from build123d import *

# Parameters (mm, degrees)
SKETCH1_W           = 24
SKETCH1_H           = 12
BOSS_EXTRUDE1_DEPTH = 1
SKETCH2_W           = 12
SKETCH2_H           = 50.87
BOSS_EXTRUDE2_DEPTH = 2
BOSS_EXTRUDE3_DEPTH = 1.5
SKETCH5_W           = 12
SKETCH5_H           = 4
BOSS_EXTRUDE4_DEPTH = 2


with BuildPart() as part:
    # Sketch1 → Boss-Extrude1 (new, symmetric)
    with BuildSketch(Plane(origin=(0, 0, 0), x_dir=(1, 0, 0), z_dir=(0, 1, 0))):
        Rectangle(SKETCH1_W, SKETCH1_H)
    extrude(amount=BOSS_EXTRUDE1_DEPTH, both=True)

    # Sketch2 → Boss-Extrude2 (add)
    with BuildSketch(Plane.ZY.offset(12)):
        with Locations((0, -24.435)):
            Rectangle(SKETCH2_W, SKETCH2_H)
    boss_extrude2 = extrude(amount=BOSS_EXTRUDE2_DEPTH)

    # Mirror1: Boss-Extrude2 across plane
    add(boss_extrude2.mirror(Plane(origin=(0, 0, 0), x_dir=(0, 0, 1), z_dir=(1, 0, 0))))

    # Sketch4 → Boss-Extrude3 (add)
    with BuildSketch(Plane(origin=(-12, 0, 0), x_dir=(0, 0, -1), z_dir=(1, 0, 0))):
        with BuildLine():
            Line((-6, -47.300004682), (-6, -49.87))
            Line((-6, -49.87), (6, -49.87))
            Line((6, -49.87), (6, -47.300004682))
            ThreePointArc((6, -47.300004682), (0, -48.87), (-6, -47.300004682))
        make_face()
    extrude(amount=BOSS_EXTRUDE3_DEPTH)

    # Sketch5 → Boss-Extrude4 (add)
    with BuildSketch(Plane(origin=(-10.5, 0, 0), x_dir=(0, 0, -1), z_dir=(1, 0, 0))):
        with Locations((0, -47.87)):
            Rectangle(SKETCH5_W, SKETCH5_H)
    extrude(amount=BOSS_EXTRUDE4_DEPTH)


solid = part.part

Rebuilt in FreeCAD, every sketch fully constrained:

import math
import FreeCAD as App
import Part
import Sketcher
from FreeCAD import Vector
Q = App.Units.Quantity


def add_polygon(sketch, points):
    """Adds a closed chain of lines whose ends are joined by coincident constraints."""
    first, n = sketch.GeometryCount, len(points)
    for a, b in zip(points, points[1:] + points[:1]):
        sketch.addGeometry(Part.LineSegment(App.Vector(*a, 0), App.Vector(*b, 0)), False)
    for i in range(n):
        sketch.addConstraint(Sketcher.Constraint("Coincident", first + i, 2, first + (i + 1) % n, 1))

doc = App.newDocument("Part")
body = doc.addObject("PartDesign::Body", "Body")

# Sketch on XZ plane
sketch1 = body.newObject("Sketcher::SketchObject", "Sketch")
sketch1.AttachmentSupport = (doc.getObject("XZ_Plane"), [""])
sketch1.MapMode = "FlatFace"
add_polygon(sketch1, [(-12, -6), (-12, 6), (12, 6), (12, -6)])  # lines 0-3
sketch1.addConstraint([
    Sketcher.Constraint("Vertical", 0),
    Sketcher.Constraint("Horizontal", 1),
    Sketcher.Constraint("Vertical", 2),
    Sketcher.Constraint("Horizontal", 3),
    Sketcher.Constraint("Symmetric", 0, 2, 2, 2, -1, 1),
    Sketcher.Constraint("DistanceX", 1, 1, 1, 2, Q("24 mm")),
    Sketcher.Constraint("DistanceY", 0, 1, 0, 2, Q("12 mm")),
])
pad1 = body.newObject("PartDesign::Pad", "Pad")
pad1.Profile = sketch1
pad1.Length = 2
pad1.Midplane = True

# Sketch on YZ plane
sketch2 = body.newObject("Sketcher::SketchObject", "Sketch001")
sketch2.AttachmentSupport = (doc.getObject("YZ_Plane"), [""])
sketch2.MapMode = "FlatFace"
sketch2.AttachmentOffset = App.Placement(Vector(0, 0, -12), App.Rotation())
add_polygon(sketch2, [(1, -6), (-50, -6), (-50, 6), (1, 6)])  # lines 0-3
sketch2.addConstraint([
    Sketcher.Constraint("Horizontal", 0),
    Sketcher.Constraint("Vertical", 1),
    Sketcher.Constraint("Horizontal", 2),
    Sketcher.Constraint("Vertical", 3),
    Sketcher.Constraint("DistanceY", 1, 1, 1, 2, Q("12 mm")),
    Sketcher.Constraint("DistanceY", 0, 2, -1, 1, Q("6 mm")),
    Sketcher.Constraint("DistanceX", -1, 1, 2, 2, Q("1 mm")),
    Sketcher.Constraint("DistanceX", 0, 2, 0, 1, Q("50.87 mm")),
])
pad2 = body.newObject("PartDesign::Pad", "Pad001")
pad2.Profile = sketch2
pad2.Length = 2
pad2.Reversed = True
doc.recompute()

mirrored = body.newObject("PartDesign::Mirrored", "Mirrored")
mirrored.Originals = [pad2]
mirrored.MirrorPlane = (doc.getObject("YZ_Plane"), [""])
body.Tip = mirrored

# Sketch on YZ plane
sketch3 = body.newObject("Sketcher::SketchObject", "Sketch002")
sketch3.AttachmentSupport = (doc.getObject("YZ_Plane"), [""])
sketch3.MapMode = "FlatFace"
sketch3.AttachmentOffset = App.Placement(Vector(0, 0, -12), App.Rotation())
sketch3.addGeometry([
    Part.LineSegment(Vector(-47.3, 6, 0), Vector(-49.9, 6, 0)),
    Part.LineSegment(Vector(-49.9, 6, 0), Vector(-49.9, -6, 0)),
    Part.LineSegment(Vector(-49.9, -6, 0), Vector(-47.3, -6, 0)),
    Part.ArcOfCircle(Part.Circle(Vector(-36.6, 0, 0), Vector(0, 0, 1), 12.3), math.radians(151), math.radians(209)),
], False)
sketch3.addConstraint([
    Sketcher.Constraint("Coincident", 0, 2, 1, 1),
    Sketcher.Constraint("Coincident", 1, 2, 2, 1),
    Sketcher.Constraint("Coincident", 2, 2, 3, 2),
    Sketcher.Constraint("Coincident", 3, 1, 0, 1),
    Sketcher.Constraint("Horizontal", 0),
    Sketcher.Constraint("Vertical", 1),
    Sketcher.Constraint("Horizontal", 2),
    Sketcher.Constraint("Symmetric", 2, 2, 3, 1, -1),
    Sketcher.Constraint("DistanceY", 1, 2, 1, 1, Q("12 mm")),
    Sketcher.Constraint("Radius", 3, Q("12.25 mm")),
    Sketcher.Constraint("DistanceX", 3, 3, -1, 1, Q("36.62 mm")),
    Sketcher.Constraint("DistanceX", 0, 2, -1, 1, Q("49.87 mm")),
])
pad3 = body.newObject("PartDesign::Pad", "Pad002")
pad3.Profile = sketch3
pad3.Length = 1.5

# Sketch on YZ plane
sketch4 = body.newObject("Sketcher::SketchObject", "Sketch003")
sketch4.AttachmentSupport = (doc.getObject("YZ_Plane"), [""])
sketch4.MapMode = "FlatFace"
sketch4.AttachmentOffset = App.Placement(Vector(0, 0, -10.5), App.Rotation())
add_polygon(sketch4, [(-45.9, 6), (-49.9, 6), (-49.9, -6), (-45.9, -6)])  # lines 0-3
sketch4.addConstraint([
    Sketcher.Constraint("Horizontal", 0),
    Sketcher.Constraint("Vertical", 1),
    Sketcher.Constraint("Horizontal", 2),
    Sketcher.Constraint("Vertical", 3),
    Sketcher.Constraint("DistanceX", 0, 2, 0, 1, Q("4 mm")),
    Sketcher.Constraint("DistanceY", 1, 2, 1, 1, Q("12 mm")),
    Sketcher.Constraint("DistanceY", -1, 1, 0, 2, Q("6 mm")),
    Sketcher.Constraint("DistanceX", 0, 2, -1, 1, Q("49.87 mm")),
])
pad4 = body.newObject("PartDesign::Pad", "Pad003")
pad4.Profile = sketch4
pad4.Length = 2

doc.recompute()
